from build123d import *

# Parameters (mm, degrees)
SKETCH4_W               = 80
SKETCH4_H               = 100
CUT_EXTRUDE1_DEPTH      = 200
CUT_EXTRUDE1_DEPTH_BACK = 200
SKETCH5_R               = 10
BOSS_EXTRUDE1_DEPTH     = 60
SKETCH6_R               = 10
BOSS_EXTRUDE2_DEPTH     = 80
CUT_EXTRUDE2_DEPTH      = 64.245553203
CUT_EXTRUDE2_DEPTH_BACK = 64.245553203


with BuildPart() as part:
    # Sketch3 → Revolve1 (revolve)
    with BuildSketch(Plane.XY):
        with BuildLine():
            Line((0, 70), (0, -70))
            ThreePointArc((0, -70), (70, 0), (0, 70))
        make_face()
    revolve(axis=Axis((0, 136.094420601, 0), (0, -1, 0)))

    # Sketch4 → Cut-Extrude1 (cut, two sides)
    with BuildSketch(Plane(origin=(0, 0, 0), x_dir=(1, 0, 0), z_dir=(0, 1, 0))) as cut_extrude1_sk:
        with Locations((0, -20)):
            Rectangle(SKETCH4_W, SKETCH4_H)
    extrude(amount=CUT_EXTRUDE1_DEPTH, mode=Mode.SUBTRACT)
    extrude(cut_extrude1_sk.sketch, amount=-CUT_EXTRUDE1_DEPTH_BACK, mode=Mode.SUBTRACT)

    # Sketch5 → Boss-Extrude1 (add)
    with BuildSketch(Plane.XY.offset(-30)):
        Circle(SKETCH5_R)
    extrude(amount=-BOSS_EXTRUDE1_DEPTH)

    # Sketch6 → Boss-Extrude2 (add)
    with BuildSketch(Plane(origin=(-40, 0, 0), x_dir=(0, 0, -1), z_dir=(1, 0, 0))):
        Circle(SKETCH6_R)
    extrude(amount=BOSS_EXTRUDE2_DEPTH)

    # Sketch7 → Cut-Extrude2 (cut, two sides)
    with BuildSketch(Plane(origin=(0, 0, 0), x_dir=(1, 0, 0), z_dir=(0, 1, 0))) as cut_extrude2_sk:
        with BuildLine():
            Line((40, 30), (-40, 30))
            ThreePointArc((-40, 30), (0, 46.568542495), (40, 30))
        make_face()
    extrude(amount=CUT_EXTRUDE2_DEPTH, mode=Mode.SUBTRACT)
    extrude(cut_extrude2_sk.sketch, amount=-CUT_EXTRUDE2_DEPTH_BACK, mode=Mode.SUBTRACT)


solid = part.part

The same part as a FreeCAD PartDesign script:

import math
import FreeCAD as App
import Part
import Sketcher

doc = App.newDocument("Part")
body = doc.addObject("PartDesign::Body", "Body")

sketch1 = body.newObject("Sketcher::SketchObject", "Sketch")
sketch1.AttachmentSupport = (doc.getObject("XY_Plane"), [""])
sketch1.MapMode = "FlatFace"
sketch1.addGeometry([
    Part.LineSegment(App.Vector(0, 70, 0), App.Vector(0, -70, 0)),
    Part.ArcOfCircle(Part.Circle(App.Vector(0, 0, 0), App.Vector(0, 0, 1), 70), math.radians(-90), math.radians(90)),
], False)
sketch1.addConstraint([
    Sketcher.Constraint("Coincident", 0, 1, 1, 2),
    Sketcher.Constraint("Coincident", 1, 1, 0, 2),
    Sketcher.Constraint("Vertical", 0),
    Sketcher.Constraint("Coincident", 1, 3, -1, 1),
    Sketcher.Constraint("PointOnObject", 0, 1, -2),
    Sketcher.Constraint("Radius", 1, 70.0),
])
revolution = body.newObject("PartDesign::Revolution", "Revolution")
revolution.Profile = sketch1
revolution.ReferenceAxis = (sketch1, ["V_Axis"])
revolution.Angle = 360

sketch2 = body.newObject("Sketcher::SketchObject", "Sketch001")
sketch2.AttachmentSupport = (doc.getObject("XZ_Plane"), [""])
sketch2.MapMode = "FlatFace"
sketch2.addGeometry([
    Part.LineSegment(App.Vector(-40, -30, 0), App.Vector(-40, 70, 0)),
    Part.LineSegment(App.Vector(-40, 70, 0), App.Vector(40, 70, 0)),
    Part.LineSegment(App.Vector(40, 70, 0), App.Vector(40, -30, 0)),
    Part.LineSegment(App.Vector(40, -30, 0), App.Vector(-40, -30, 0)),
], False)
sketch2.addConstraint([
    Sketcher.Constraint("Coincident", 0, 2, 1, 1),
    Sketcher.Constraint("Coincident", 1, 2, 2, 1),
    Sketcher.Constraint("Coincident", 2, 2, 3, 1),
    Sketcher.Constraint("Coincident", 3, 2, 0, 1),
    Sketcher.Constraint("Vertical", 0),
    Sketcher.Constraint("Horizontal", 1),
    Sketcher.Constraint("Vertical", 2),
    Sketcher.Constraint("Horizontal", 3),
    Sketcher.Constraint("DistanceX", 1, 1, 1, 2, 80.0),
    Sketcher.Constraint("DistanceY", 0, 1, 0, 2, 100.0),
    Sketcher.Constraint("DistanceX", 0, 2, -1, 1, 40.0),
    Sketcher.Constraint("DistanceY", -1, 1, 0, 2, 70.0),
])
pocket1 = body.newObject("PartDesign::Pocket", "Pocket")
pocket1.Profile = sketch2
pocket1.Type = "ThroughAll"
pocket1.Midplane = True

sketch3 = body.newObject("Sketcher::SketchObject", "Sketch002")
sketch3.AttachmentSupport = (doc.getObject("XY_Plane"), [""])
sketch3.MapMode = "FlatFace"
sketch3.AttachmentOffset = App.Placement(App.Vector(0, 0, -30), App.Rotation())
sketch3.addGeometry(Part.Circle(App.Vector(0, 0, 0), App.Vector(0, 0, 1), 10), False)
sketch3.addConstraint([
    Sketcher.Constraint("Coincident", 0, 3, -1, 1),
    Sketcher.Constraint("Diameter", 0, 20.0),
])
pad1 = body.newObject("PartDesign::Pad", "Pad")
pad1.Profile = sketch3
pad1.Length = 60
pad1.Reversed = True

sketch4 = body.newObject("Sketcher::SketchObject", "Sketch003")
sketch4.AttachmentSupport = (doc.getObject("YZ_Plane"), [""])
sketch4.MapMode = "FlatFace"
sketch4.AttachmentOffset = App.Placement(App.Vector(0, 0, -40), App.Rotation())
sketch4.addGeometry(Part.Circle(App.Vector(0, 0, 0), App.Vector(0, 0, 1), 10), False)
sketch4.addConstraint([
    Sketcher.Constraint("Coincident", 0, 3, -1, 1),
    Sketcher.Constraint("Diameter", 0, 20.0),
])
pad2 = body.newObject("PartDesign::Pad", "Pad001")
pad2.Profile = sketch4
pad2.Length = 80

sketch5 = body.newObject("Sketcher::SketchObject", "Sketch004")
sketch5.AttachmentSupport = (doc.getObject("XZ_Plane"), [""])
sketch5.MapMode = "FlatFace"
sketch5.addGeometry([
    Part.LineSegment(App.Vector(-40, -30, 0), App.Vector(40, -30, 0)),
    Part.ArcOfCircle(Part.Circle(App.Vector(0, 10, 0), App.Vector(0, 0, 1), 57), math.radians(-135), math.radians(-45)),
], False)
sketch5.addConstraint([
    Sketcher.Constraint("Coincident", 0, 1, 1, 1),
    Sketcher.Constraint("Coincident", 1, 2, 0, 2),
    Sketcher.Constraint("Horizontal", 0),
    Sketcher.Constraint("PointOnObject", 1, 3, -2),
    Sketcher.Constraint("DistanceX", 0, 1, 0, 2, 80.0),
    Sketcher.Constraint("DistanceY", -1, 1, 1, 3, 10.0),
    Sketcher.Constraint("DistanceY", 0, 1, -1, 1, 30.0),
])
pocket2 = body.newObject("PartDesign::Pocket", "Pocket001")
pocket2.Profile = sketch5
pocket2.Type = "ThroughAll"
pocket2.Midplane = True

doc.recompute()
